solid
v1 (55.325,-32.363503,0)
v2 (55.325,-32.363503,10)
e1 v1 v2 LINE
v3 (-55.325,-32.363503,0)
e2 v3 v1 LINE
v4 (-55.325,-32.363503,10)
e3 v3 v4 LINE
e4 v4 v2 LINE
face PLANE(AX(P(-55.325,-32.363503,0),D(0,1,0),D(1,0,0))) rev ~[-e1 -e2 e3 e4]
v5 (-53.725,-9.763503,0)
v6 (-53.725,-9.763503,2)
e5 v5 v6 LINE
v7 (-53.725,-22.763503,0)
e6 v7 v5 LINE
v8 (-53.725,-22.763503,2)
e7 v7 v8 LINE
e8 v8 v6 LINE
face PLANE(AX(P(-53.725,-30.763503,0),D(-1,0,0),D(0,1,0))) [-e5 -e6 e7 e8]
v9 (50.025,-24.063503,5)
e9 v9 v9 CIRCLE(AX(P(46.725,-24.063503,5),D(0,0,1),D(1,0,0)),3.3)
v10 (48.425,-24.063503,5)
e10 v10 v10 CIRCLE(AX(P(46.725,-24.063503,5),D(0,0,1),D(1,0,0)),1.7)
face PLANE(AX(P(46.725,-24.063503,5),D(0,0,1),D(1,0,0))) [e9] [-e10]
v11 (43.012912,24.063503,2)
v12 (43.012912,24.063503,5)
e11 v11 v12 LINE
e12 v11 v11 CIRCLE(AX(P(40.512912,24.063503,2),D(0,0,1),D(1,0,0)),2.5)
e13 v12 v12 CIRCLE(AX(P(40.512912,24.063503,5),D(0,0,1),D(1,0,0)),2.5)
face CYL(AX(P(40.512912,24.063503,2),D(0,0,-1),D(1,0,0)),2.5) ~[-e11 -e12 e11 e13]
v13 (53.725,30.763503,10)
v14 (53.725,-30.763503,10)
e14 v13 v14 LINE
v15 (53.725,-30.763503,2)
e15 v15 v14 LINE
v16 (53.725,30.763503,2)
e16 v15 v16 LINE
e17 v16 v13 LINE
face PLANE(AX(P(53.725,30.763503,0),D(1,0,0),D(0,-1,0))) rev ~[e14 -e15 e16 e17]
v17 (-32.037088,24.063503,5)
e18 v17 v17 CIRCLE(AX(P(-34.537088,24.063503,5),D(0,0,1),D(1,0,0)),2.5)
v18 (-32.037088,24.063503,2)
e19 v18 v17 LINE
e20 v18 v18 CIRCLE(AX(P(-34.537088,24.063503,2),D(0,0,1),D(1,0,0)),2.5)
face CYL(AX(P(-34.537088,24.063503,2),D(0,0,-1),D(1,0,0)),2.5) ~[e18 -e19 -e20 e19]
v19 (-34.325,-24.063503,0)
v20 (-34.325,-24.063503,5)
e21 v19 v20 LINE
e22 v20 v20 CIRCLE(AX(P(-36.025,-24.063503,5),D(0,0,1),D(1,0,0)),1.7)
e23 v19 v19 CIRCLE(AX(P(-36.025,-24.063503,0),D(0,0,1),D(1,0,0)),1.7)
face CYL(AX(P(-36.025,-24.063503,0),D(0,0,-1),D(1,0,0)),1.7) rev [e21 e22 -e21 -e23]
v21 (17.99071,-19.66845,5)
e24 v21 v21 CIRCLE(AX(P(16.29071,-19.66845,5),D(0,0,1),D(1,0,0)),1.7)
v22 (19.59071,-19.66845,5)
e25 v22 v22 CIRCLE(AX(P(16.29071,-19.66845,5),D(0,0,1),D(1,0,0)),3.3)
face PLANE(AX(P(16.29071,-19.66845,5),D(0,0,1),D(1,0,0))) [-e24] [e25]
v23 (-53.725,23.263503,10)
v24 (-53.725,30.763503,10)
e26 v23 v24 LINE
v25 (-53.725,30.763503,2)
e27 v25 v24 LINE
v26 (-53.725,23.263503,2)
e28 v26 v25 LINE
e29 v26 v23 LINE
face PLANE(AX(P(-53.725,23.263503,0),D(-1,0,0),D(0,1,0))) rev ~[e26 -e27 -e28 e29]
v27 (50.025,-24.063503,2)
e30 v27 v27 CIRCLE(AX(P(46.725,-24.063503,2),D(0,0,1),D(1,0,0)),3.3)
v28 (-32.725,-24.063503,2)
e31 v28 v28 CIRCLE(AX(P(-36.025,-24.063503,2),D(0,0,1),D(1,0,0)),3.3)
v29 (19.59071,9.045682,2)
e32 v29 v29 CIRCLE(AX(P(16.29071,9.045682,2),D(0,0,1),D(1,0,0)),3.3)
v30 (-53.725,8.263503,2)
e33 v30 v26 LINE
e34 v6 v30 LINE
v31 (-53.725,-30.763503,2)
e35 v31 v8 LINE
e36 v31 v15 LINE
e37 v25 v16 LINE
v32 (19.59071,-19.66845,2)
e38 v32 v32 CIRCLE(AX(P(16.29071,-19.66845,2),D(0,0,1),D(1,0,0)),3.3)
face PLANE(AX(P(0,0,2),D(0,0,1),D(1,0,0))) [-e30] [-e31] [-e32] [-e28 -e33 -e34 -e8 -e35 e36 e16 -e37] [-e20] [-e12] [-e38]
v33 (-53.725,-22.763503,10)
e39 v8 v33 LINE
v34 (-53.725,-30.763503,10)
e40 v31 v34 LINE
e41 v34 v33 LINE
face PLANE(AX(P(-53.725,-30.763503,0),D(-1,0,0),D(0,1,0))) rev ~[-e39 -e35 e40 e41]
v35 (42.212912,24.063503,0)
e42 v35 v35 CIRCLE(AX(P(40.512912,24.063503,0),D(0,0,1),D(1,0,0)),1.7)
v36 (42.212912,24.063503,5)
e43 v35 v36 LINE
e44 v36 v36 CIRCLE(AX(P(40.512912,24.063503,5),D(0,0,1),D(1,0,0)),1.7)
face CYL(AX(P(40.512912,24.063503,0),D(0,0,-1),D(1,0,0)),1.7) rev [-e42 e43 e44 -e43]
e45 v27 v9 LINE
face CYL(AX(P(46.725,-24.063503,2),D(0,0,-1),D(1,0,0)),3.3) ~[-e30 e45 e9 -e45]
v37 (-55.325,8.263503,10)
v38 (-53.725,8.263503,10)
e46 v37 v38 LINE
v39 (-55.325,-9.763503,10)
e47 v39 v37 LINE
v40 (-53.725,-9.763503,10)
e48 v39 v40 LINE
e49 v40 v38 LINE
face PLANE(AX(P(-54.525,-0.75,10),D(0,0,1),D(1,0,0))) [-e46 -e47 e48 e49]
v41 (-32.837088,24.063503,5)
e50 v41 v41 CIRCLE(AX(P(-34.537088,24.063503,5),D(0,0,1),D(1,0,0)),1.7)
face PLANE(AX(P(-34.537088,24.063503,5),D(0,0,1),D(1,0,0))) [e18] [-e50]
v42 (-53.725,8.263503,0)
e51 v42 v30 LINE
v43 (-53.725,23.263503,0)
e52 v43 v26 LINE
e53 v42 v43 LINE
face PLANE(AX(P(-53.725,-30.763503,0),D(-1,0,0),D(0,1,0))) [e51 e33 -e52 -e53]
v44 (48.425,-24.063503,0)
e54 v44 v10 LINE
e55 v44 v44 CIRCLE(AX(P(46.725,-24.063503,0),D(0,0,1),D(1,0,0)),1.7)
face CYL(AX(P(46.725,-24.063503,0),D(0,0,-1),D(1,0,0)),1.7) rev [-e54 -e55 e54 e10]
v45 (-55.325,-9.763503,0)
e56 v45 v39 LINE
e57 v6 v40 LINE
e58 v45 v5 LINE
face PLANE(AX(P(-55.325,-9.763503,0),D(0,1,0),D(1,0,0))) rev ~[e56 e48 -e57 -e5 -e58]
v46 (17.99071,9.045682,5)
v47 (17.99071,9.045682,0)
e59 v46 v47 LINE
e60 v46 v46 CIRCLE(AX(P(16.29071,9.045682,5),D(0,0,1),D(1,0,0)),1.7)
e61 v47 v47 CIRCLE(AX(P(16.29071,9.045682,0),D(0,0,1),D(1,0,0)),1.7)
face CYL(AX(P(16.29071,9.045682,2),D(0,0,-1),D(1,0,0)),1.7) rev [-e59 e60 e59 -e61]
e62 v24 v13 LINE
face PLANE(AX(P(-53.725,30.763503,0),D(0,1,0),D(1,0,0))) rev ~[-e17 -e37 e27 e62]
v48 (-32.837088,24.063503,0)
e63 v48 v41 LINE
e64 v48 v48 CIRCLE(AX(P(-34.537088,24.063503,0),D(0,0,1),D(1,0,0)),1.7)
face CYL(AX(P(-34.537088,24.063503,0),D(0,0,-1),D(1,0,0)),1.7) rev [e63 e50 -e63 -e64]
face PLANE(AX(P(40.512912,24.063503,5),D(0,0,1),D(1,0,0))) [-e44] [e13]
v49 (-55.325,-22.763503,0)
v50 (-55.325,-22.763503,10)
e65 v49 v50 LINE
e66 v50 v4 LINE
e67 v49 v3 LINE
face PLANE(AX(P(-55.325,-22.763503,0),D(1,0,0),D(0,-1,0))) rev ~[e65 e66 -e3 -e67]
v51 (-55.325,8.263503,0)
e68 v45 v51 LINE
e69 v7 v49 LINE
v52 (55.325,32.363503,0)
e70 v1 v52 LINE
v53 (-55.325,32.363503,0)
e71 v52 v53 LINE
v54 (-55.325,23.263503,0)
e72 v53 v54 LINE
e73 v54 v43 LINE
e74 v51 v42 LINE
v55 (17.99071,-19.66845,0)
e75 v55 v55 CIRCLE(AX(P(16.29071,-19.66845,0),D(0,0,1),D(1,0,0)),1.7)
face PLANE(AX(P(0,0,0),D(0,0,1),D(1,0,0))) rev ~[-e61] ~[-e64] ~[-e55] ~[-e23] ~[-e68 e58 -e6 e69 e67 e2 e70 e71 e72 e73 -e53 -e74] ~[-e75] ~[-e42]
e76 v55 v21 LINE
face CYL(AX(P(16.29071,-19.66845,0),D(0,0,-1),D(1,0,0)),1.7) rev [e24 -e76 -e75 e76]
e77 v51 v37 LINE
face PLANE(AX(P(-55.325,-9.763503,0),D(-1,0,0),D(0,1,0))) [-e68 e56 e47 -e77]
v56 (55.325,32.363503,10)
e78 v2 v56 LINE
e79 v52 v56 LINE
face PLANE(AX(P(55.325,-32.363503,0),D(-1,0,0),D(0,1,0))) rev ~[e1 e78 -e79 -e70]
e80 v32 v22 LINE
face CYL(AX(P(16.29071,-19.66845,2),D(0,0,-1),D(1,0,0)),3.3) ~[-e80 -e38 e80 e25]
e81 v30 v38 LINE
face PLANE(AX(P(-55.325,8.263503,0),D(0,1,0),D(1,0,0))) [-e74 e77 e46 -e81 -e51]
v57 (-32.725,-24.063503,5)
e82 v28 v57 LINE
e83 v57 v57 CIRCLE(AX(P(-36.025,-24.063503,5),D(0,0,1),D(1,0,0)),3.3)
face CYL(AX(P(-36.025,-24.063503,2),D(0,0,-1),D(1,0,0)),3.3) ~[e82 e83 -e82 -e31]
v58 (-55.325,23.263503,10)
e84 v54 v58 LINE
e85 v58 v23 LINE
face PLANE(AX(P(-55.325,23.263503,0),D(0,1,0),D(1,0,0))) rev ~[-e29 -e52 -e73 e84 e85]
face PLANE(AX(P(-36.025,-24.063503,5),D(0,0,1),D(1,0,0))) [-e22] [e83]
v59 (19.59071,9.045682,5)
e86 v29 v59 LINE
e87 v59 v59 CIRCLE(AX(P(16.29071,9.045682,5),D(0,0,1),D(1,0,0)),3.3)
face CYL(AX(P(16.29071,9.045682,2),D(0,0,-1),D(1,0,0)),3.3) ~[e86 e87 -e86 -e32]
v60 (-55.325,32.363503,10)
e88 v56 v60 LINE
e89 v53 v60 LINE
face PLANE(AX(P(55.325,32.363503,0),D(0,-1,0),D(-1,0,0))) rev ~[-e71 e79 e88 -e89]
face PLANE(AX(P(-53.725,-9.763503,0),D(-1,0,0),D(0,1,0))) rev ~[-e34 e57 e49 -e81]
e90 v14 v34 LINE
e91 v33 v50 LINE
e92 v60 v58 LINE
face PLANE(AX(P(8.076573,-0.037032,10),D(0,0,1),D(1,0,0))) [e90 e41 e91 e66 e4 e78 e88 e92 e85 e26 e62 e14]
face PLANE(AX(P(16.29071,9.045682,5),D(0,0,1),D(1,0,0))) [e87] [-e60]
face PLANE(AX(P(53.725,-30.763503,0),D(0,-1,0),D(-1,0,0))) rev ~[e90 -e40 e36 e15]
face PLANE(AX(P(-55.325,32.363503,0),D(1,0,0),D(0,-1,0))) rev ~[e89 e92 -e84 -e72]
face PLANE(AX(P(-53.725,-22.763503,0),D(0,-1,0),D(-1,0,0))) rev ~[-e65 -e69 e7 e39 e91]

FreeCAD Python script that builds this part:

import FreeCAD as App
import Part
import Sketcher
Q = App.Units.Quantity


def add_polygon(sketch, points):
    """Adds a closed chain of lines whose ends are joined by coincident constraints."""
    first, n = sketch.GeometryCount, len(points)
    for a, b in zip(points, points[1:] + points[:1]):
        sketch.addGeometry(Part.LineSegment(App.Vector(*a, 0), App.Vector(*b, 0)), False)
    for i in range(n):
        sketch.addConstraint(Sketcher.Constraint("Coincident", first + i, 2, first + (i + 1) % n, 1))

doc = App.newDocument("Part")
params = doc.addObject("Spreadsheet::Sheet", "Params")
for row, (alias, value) in enumerate([
    ("sketch1_diameter", "3.4 mm"),
    ("sketch1_width", "107.45 mm"),
    ("pad1_length", "2 mm"),
    ("sketch2_diameter", "5 mm"),
    ("sketch2_diameter2", "6.6 mm"),
    ("sketch2_diameter3", "3.4 mm"),
    ("pad2_length", "3 mm"),
    ("sketch3_height", "8 mm"),
    ("sketch3_width", "1.6 mm"),
    ("sketch3_height2", "9.6 mm"),
    ("sketch3_height3", "9.1 mm"),
    ("sketch3_width2", "107.45 mm"),
    ("pad3_length", "10 mm"),
], start=1):
    params.set(f"A{row}", alias)
    params.set(f"B{row}", "=" + value)
    params.setAlias(f"B{row}", alias)

body = doc.addObject("PartDesign::Body", "Body")

# Sketch on XY plane
sketch1 = body.newObject("Sketcher::SketchObject", "Sketch")
sketch1.AttachmentSupport = (doc.getObject("XY_Plane"), [""])
sketch1.MapMode = "FlatFace"
add_polygon(sketch1, [(-53.7, 30.8), (-53.7, -30.8), (53.7, -30.8), (53.7, 30.8)])  # lines 0-3
sketch1.addGeometry(Part.Circle(App.Vector(-36, -24.1, 0), App.Vector(0, 0, 1), 1.7), False)  # 4
sketch1.addGeometry(Part.Circle(App.Vector(16.3, -19.7, 0), App.Vector(0, 0, 1), 1.7), False)  # 5
sketch1.addGeometry(Part.Circle(App.Vector(46.7, -24.1, 0), App.Vector(0, 0, 1), 1.7), False)  # 6
sketch1.addGeometry(Part.Circle(App.Vector(-34.5, 24.1, 0), App.Vector(0, 0, 1), 1.7), False)  # 7
sketch1.addGeometry(Part.Circle(App.Vector(16.3, 9, 0), App.Vector(0, 0, 1), 1.7), False)  # 8
sketch1.addGeometry(Part.Circle(App.Vector(40.5, 24.1, 0), App.Vector(0, 0, 1), 1.7), False)  # 9
sketch1.addConstraint([
    Sketcher.Constraint("Vertical", 0),
    Sketcher.Constraint("Horizontal", 1),
    Sketcher.Constraint("Vertical", 2),
    Sketcher.Constraint("Horizontal", 3),
    Sketcher.Constraint("Equal", 4, 5),
    Sketcher.Constraint("Equal", 5, 6),
    Sketcher.Constraint("Equal", 6, 7),
    Sketcher.Constraint("Equal", 7, 8),
    Sketcher.Constraint("Equal", 8, 9),
    Sketcher.Constraint("Symmetric", 0, 2, 2, 2, -1, 1),
    Sketcher.Constraint("Horizontal", 4, 3, 6, 3),
    Sketcher.Constraint("Horizontal", 7, 3, 9, 3),
    Sketcher.Constraint("Vertical", 5, 3, 8, 3),
    Sketcher.Constraint("Diameter", 4, Q("3.4 mm")),
    Sketcher.Constraint("DistanceX", 6, 3, 1, 2, Q("7 mm")),
    Sketcher.Constraint("DistanceX", 1, 1, 1, 2, Q("107.45 mm")),
    Sketcher.Constraint("DistanceX", 0, 2, 4, 3, Q("17.7 mm")),
    Sketcher.Constraint("DistanceY", 0, 2, 4, 3, Q("6.7 mm")),
    Sketcher.Constraint("DistanceY", 9, 3, 2, 2, Q("6.7 mm")),
    Sketcher.Constraint("DistanceX", 7, 3, 9, 3, Q("75.05 mm")),
    Sketcher.Constraint("DistanceX", 8, 3, 9, 3, Q("24.222202 mm")),
    Sketcher.Constraint("DistanceY", 0, 2, 0, 1, Q("61.527006 mm")),
    Sketcher.Constraint("DistanceX", -1, 1, 5, 3, Q("16.29071 mm")),
    Sketcher.Constraint("DistanceY", 5, 3, -1, 1, Q("19.66845 mm")),
    Sketcher.Constraint("DistanceY", -1, 1, 8, 3, Q("9.045682 mm")),
])
sketch1.setExpression("Constraints[17]", "Params.sketch1_diameter")
sketch1.setExpression("Constraints[19]", "Params.sketch1_width")
pad1 = body.newObject("PartDesign::Pad", "Pad")
pad1.Profile = sketch1
pad1.setExpression("Length", "Params.pad1_length")

# Sketch on XY plane
sketch2 = body.newObject("Sketcher::SketchObject", "Sketch001")
sketch2.AttachmentSupport = (doc.getObject("XY_Plane"), [""])
sketch2.MapMode = "FlatFace"
sketch2.AttachmentOffset = App.Placement(App.Vector(0, 0, 2), App.Rotation())
sketch2.addGeometry([
    Part.Circle(App.Vector(16.3, 9, 0), App.Vector(0, 0, 1), 3.3),  # 0
    Part.Circle(App.Vector(16.3, 9, 0), App.Vector(0, 0, 1), 1.7),  # 1
    Part.Circle(App.Vector(40.5, 24.1, 0), App.Vector(0, 0, 1), 2.5),  # 2
    Part.Circle(App.Vector(40.5, 24.1, 0), App.Vector(0, 0, 1), 1.7),  # 3
    Part.Circle(App.Vector(46.7, -24.1, 0), App.Vector(0, 0, 1), 3.3),  # 4
    Part.Circle(App.Vector(46.7, -24.1, 0), App.Vector(0, 0, 1), 1.7),  # 5
    Part.Circle(App.Vector(16.3, -19.7, 0), App.Vector(0, 0, 1), 3.3),  # 6
    Part.Circle(App.Vector(16.3, -19.7, 0), App.Vector(0, 0, 1), 1.7),  # 7
    Part.Circle(App.Vector(-36, -24.1, 0), App.Vector(0, 0, 1), 3.3),  # 8
    Part.Circle(App.Vector(-36, -24.1, 0), App.Vector(0, 0, 1), 1.7),  # 9
    Part.Circle(App.Vector(-34.5, 24.1, 0), App.Vector(0, 0, 1), 2.5),  # 10
    Part.Circle(App.Vector(-34.5, 24.1, 0), App.Vector(0, 0, 1), 1.7),  # 11
], False)
sketch2.addConstraint([
    Sketcher.Constraint("Coincident", 1, 3, 0, 3),
    Sketcher.Constraint("Coincident", 3, 3, 2, 3),
    Sketcher.Constraint("Coincident", 5, 3, 4, 3),
    Sketcher.Constraint("Coincident", 7, 3, 6, 3),
    Sketcher.Constraint("Coincident", 9, 3, 8, 3),
    Sketcher.Constraint("Coincident", 11, 3, 10, 3),
    Sketcher.Constraint("Equal", 1, 3),
    Sketcher.Constraint("Equal", 0, 4),
    Sketcher.Constraint("Equal", 3, 5),
    Sketcher.Constraint("Equal", 4, 6),
    Sketcher.Constraint("Equal", 5, 7),
    Sketcher.Constraint("Equal", 6, 8),
    Sketcher.Constraint("Equal", 7, 9),
    Sketcher.Constraint("Equal", 2, 10),
    Sketcher.Constraint("Equal", 9, 11),
    Sketcher.Constraint("Horizontal", 5, 3, 8, 3),
    Sketcher.Constraint("Horizontal", 3, 3, 10, 3),
    Sketcher.Constraint("Vertical", 1, 3, 6, 3),
    Sketcher.Constraint("Diameter", 2, Q("5 mm")),
    Sketcher.Constraint("Diameter", 0, Q("6.6 mm")),
    Sketcher.Constraint("Diameter", 1, Q("3.4 mm")),
    Sketcher.Constraint("DistanceX", 8, 3, 4, 3, Q("82.75 mm")),
    Sketcher.Constraint("DistanceX", -1, 1, 4, 3, Q("46.725 mm")),
    Sketcher.Constraint("DistanceX", 0, 3, 2, 3, Q("24.222202 mm")),
    Sketcher.Constraint("DistanceX", -1, 1, 0, 3, Q("16.29071 mm")),
    Sketcher.Constraint("DistanceY", -1, 1, 0, 3, Q("9.045682 mm")),
    Sketcher.Constraint("DistanceY", 6, 3, -1, 1, Q("19.66845 mm")),
    Sketcher.Constraint("DistanceY", 0, 3, 2, 3, Q("15.017821 mm")),
    Sketcher.Constraint("DistanceY", 4, 3, -1, 1, Q("24.063503 mm")),
    Sketcher.Constraint("DistanceX", 10, 3, -1, 1, Q("34.537088 mm")),
])
sketch2.setExpression("Constraints[18]", "Params.sketch2_diameter")
sketch2.setExpression("Constraints[19]", "Params.sketch2_diameter2")
sketch2.setExpression("Constraints[20]", "Params.sketch2_diameter3")
pad2 = body.newObject("PartDesign::Pad", "Pad001")
pad2.Profile = sketch2
pad2.setExpression("Length", "Params.pad2_length")

# Sketch on XY plane
sketch3 = body.newObject("Sketcher::SketchObject", "Sketch002")
sketch3.AttachmentSupport = (doc.getObject("XY_Plane"), [""])
sketch3.MapMode = "FlatFace"
add_polygon(sketch3, [(-53.7, 30.8), (53.7, 30.8), (53.7, -30.8), (-53.7, -30.8), (-53.7, -22.8), (-55.3, -22.8), (-55.3, -32.4), (55.3, -32.4), (55.3, 32.4), (-55.3, 32.4), (-55.3, 23.3), (-53.7, 23.3)])  # lines 0-11
add_polygon(sketch3, [(-55.3, 8.3), (-55.3, -9.8), (-53.7, -9.8), (-53.7, 8.3)])  # lines 12-15
sketch3.addConstraint([
    Sketcher.Constraint("Horizontal", 0),
    Sketcher.Constraint("Vertical", 1),
    Sketcher.Constraint("Horizontal", 2),
    Sketcher.Constraint("Vertical", 3),
    Sketcher.Constraint("Horizontal", 4),
    Sketcher.Constraint("Vertical", 5),
    Sketcher.Constraint("Horizontal", 6),
    Sketcher.Constraint("Vertical", 7),
    Sketcher.Constraint("Horizontal", 8),
    Sketcher.Constraint("Vertical", 9),
    Sketcher.Constraint("Horizontal", 10),
    Sketcher.Constraint("Vertical", 11),
    Sketcher.Constraint("Vertical", 12),
    Sketcher.Constraint("Horizontal", 13),
    Sketcher.Constraint("Vertical", 14),
    Sketcher.Constraint("Horizontal", 15),
    Sketcher.Constraint("Symmetric", 0, 2, 2, 2, -1, 1),
    Sketcher.Constraint("Symmetric", 5, 2, 7, 2, -1, 1),
    Sketcher.Constraint("Vertical", 5, 2, 8, 2),
    Sketcher.Constraint("Vertical", 3, 2, 10, 2),
    Sketcher.Constraint("Vertical", 9, 2, 12, 2),
    Sketcher.Constraint("Vertical", 11, 2, 13, 2),
    Sketcher.Constraint("DistanceY", 3, 1, 3, 2, Q("8 mm")),
    Sketcher.Constraint("DistanceX", 4, 2, 4, 1, Q("1.6 mm")),
    Sketcher.Constraint("DistanceY", 5, 2, 5, 1, Q("9.6 mm")),
    Sketcher.Constraint("DistanceY", 9, 2, 9, 1, Q("9.1 mm")),
    Sketcher.Constraint("DistanceY", 4, 2, 12, 2, Q("13 mm")),
    Sketcher.Constraint("DistanceY", 14, 2, 10, 2, Q("15 mm")),
    Sketcher.Constraint("DistanceX", 0, 1, 0, 2, Q("107.45 mm")),
    Sketcher.Constraint("DistanceY", 1, 2, 1, 1, Q("61.527006 mm")),
])
sketch3.setExpression("Constraints[38]", "Params.sketch3_height")
sketch3.setExpression("Constraints[39]", "Params.sketch3_width")
sketch3.setExpression("Constraints[40]", "Params.sketch3_height2")
sketch3.setExpression("Constraints[41]", "Params.sketch3_height3")
sketch3.setExpression("Constraints[44]", "Params.sketch3_width2")
pad3 = body.newObject("PartDesign::Pad", "Pad002")
pad3.Profile = sketch3
pad3.setExpression("Length", "Params.pad3_length")

doc.recompute()
